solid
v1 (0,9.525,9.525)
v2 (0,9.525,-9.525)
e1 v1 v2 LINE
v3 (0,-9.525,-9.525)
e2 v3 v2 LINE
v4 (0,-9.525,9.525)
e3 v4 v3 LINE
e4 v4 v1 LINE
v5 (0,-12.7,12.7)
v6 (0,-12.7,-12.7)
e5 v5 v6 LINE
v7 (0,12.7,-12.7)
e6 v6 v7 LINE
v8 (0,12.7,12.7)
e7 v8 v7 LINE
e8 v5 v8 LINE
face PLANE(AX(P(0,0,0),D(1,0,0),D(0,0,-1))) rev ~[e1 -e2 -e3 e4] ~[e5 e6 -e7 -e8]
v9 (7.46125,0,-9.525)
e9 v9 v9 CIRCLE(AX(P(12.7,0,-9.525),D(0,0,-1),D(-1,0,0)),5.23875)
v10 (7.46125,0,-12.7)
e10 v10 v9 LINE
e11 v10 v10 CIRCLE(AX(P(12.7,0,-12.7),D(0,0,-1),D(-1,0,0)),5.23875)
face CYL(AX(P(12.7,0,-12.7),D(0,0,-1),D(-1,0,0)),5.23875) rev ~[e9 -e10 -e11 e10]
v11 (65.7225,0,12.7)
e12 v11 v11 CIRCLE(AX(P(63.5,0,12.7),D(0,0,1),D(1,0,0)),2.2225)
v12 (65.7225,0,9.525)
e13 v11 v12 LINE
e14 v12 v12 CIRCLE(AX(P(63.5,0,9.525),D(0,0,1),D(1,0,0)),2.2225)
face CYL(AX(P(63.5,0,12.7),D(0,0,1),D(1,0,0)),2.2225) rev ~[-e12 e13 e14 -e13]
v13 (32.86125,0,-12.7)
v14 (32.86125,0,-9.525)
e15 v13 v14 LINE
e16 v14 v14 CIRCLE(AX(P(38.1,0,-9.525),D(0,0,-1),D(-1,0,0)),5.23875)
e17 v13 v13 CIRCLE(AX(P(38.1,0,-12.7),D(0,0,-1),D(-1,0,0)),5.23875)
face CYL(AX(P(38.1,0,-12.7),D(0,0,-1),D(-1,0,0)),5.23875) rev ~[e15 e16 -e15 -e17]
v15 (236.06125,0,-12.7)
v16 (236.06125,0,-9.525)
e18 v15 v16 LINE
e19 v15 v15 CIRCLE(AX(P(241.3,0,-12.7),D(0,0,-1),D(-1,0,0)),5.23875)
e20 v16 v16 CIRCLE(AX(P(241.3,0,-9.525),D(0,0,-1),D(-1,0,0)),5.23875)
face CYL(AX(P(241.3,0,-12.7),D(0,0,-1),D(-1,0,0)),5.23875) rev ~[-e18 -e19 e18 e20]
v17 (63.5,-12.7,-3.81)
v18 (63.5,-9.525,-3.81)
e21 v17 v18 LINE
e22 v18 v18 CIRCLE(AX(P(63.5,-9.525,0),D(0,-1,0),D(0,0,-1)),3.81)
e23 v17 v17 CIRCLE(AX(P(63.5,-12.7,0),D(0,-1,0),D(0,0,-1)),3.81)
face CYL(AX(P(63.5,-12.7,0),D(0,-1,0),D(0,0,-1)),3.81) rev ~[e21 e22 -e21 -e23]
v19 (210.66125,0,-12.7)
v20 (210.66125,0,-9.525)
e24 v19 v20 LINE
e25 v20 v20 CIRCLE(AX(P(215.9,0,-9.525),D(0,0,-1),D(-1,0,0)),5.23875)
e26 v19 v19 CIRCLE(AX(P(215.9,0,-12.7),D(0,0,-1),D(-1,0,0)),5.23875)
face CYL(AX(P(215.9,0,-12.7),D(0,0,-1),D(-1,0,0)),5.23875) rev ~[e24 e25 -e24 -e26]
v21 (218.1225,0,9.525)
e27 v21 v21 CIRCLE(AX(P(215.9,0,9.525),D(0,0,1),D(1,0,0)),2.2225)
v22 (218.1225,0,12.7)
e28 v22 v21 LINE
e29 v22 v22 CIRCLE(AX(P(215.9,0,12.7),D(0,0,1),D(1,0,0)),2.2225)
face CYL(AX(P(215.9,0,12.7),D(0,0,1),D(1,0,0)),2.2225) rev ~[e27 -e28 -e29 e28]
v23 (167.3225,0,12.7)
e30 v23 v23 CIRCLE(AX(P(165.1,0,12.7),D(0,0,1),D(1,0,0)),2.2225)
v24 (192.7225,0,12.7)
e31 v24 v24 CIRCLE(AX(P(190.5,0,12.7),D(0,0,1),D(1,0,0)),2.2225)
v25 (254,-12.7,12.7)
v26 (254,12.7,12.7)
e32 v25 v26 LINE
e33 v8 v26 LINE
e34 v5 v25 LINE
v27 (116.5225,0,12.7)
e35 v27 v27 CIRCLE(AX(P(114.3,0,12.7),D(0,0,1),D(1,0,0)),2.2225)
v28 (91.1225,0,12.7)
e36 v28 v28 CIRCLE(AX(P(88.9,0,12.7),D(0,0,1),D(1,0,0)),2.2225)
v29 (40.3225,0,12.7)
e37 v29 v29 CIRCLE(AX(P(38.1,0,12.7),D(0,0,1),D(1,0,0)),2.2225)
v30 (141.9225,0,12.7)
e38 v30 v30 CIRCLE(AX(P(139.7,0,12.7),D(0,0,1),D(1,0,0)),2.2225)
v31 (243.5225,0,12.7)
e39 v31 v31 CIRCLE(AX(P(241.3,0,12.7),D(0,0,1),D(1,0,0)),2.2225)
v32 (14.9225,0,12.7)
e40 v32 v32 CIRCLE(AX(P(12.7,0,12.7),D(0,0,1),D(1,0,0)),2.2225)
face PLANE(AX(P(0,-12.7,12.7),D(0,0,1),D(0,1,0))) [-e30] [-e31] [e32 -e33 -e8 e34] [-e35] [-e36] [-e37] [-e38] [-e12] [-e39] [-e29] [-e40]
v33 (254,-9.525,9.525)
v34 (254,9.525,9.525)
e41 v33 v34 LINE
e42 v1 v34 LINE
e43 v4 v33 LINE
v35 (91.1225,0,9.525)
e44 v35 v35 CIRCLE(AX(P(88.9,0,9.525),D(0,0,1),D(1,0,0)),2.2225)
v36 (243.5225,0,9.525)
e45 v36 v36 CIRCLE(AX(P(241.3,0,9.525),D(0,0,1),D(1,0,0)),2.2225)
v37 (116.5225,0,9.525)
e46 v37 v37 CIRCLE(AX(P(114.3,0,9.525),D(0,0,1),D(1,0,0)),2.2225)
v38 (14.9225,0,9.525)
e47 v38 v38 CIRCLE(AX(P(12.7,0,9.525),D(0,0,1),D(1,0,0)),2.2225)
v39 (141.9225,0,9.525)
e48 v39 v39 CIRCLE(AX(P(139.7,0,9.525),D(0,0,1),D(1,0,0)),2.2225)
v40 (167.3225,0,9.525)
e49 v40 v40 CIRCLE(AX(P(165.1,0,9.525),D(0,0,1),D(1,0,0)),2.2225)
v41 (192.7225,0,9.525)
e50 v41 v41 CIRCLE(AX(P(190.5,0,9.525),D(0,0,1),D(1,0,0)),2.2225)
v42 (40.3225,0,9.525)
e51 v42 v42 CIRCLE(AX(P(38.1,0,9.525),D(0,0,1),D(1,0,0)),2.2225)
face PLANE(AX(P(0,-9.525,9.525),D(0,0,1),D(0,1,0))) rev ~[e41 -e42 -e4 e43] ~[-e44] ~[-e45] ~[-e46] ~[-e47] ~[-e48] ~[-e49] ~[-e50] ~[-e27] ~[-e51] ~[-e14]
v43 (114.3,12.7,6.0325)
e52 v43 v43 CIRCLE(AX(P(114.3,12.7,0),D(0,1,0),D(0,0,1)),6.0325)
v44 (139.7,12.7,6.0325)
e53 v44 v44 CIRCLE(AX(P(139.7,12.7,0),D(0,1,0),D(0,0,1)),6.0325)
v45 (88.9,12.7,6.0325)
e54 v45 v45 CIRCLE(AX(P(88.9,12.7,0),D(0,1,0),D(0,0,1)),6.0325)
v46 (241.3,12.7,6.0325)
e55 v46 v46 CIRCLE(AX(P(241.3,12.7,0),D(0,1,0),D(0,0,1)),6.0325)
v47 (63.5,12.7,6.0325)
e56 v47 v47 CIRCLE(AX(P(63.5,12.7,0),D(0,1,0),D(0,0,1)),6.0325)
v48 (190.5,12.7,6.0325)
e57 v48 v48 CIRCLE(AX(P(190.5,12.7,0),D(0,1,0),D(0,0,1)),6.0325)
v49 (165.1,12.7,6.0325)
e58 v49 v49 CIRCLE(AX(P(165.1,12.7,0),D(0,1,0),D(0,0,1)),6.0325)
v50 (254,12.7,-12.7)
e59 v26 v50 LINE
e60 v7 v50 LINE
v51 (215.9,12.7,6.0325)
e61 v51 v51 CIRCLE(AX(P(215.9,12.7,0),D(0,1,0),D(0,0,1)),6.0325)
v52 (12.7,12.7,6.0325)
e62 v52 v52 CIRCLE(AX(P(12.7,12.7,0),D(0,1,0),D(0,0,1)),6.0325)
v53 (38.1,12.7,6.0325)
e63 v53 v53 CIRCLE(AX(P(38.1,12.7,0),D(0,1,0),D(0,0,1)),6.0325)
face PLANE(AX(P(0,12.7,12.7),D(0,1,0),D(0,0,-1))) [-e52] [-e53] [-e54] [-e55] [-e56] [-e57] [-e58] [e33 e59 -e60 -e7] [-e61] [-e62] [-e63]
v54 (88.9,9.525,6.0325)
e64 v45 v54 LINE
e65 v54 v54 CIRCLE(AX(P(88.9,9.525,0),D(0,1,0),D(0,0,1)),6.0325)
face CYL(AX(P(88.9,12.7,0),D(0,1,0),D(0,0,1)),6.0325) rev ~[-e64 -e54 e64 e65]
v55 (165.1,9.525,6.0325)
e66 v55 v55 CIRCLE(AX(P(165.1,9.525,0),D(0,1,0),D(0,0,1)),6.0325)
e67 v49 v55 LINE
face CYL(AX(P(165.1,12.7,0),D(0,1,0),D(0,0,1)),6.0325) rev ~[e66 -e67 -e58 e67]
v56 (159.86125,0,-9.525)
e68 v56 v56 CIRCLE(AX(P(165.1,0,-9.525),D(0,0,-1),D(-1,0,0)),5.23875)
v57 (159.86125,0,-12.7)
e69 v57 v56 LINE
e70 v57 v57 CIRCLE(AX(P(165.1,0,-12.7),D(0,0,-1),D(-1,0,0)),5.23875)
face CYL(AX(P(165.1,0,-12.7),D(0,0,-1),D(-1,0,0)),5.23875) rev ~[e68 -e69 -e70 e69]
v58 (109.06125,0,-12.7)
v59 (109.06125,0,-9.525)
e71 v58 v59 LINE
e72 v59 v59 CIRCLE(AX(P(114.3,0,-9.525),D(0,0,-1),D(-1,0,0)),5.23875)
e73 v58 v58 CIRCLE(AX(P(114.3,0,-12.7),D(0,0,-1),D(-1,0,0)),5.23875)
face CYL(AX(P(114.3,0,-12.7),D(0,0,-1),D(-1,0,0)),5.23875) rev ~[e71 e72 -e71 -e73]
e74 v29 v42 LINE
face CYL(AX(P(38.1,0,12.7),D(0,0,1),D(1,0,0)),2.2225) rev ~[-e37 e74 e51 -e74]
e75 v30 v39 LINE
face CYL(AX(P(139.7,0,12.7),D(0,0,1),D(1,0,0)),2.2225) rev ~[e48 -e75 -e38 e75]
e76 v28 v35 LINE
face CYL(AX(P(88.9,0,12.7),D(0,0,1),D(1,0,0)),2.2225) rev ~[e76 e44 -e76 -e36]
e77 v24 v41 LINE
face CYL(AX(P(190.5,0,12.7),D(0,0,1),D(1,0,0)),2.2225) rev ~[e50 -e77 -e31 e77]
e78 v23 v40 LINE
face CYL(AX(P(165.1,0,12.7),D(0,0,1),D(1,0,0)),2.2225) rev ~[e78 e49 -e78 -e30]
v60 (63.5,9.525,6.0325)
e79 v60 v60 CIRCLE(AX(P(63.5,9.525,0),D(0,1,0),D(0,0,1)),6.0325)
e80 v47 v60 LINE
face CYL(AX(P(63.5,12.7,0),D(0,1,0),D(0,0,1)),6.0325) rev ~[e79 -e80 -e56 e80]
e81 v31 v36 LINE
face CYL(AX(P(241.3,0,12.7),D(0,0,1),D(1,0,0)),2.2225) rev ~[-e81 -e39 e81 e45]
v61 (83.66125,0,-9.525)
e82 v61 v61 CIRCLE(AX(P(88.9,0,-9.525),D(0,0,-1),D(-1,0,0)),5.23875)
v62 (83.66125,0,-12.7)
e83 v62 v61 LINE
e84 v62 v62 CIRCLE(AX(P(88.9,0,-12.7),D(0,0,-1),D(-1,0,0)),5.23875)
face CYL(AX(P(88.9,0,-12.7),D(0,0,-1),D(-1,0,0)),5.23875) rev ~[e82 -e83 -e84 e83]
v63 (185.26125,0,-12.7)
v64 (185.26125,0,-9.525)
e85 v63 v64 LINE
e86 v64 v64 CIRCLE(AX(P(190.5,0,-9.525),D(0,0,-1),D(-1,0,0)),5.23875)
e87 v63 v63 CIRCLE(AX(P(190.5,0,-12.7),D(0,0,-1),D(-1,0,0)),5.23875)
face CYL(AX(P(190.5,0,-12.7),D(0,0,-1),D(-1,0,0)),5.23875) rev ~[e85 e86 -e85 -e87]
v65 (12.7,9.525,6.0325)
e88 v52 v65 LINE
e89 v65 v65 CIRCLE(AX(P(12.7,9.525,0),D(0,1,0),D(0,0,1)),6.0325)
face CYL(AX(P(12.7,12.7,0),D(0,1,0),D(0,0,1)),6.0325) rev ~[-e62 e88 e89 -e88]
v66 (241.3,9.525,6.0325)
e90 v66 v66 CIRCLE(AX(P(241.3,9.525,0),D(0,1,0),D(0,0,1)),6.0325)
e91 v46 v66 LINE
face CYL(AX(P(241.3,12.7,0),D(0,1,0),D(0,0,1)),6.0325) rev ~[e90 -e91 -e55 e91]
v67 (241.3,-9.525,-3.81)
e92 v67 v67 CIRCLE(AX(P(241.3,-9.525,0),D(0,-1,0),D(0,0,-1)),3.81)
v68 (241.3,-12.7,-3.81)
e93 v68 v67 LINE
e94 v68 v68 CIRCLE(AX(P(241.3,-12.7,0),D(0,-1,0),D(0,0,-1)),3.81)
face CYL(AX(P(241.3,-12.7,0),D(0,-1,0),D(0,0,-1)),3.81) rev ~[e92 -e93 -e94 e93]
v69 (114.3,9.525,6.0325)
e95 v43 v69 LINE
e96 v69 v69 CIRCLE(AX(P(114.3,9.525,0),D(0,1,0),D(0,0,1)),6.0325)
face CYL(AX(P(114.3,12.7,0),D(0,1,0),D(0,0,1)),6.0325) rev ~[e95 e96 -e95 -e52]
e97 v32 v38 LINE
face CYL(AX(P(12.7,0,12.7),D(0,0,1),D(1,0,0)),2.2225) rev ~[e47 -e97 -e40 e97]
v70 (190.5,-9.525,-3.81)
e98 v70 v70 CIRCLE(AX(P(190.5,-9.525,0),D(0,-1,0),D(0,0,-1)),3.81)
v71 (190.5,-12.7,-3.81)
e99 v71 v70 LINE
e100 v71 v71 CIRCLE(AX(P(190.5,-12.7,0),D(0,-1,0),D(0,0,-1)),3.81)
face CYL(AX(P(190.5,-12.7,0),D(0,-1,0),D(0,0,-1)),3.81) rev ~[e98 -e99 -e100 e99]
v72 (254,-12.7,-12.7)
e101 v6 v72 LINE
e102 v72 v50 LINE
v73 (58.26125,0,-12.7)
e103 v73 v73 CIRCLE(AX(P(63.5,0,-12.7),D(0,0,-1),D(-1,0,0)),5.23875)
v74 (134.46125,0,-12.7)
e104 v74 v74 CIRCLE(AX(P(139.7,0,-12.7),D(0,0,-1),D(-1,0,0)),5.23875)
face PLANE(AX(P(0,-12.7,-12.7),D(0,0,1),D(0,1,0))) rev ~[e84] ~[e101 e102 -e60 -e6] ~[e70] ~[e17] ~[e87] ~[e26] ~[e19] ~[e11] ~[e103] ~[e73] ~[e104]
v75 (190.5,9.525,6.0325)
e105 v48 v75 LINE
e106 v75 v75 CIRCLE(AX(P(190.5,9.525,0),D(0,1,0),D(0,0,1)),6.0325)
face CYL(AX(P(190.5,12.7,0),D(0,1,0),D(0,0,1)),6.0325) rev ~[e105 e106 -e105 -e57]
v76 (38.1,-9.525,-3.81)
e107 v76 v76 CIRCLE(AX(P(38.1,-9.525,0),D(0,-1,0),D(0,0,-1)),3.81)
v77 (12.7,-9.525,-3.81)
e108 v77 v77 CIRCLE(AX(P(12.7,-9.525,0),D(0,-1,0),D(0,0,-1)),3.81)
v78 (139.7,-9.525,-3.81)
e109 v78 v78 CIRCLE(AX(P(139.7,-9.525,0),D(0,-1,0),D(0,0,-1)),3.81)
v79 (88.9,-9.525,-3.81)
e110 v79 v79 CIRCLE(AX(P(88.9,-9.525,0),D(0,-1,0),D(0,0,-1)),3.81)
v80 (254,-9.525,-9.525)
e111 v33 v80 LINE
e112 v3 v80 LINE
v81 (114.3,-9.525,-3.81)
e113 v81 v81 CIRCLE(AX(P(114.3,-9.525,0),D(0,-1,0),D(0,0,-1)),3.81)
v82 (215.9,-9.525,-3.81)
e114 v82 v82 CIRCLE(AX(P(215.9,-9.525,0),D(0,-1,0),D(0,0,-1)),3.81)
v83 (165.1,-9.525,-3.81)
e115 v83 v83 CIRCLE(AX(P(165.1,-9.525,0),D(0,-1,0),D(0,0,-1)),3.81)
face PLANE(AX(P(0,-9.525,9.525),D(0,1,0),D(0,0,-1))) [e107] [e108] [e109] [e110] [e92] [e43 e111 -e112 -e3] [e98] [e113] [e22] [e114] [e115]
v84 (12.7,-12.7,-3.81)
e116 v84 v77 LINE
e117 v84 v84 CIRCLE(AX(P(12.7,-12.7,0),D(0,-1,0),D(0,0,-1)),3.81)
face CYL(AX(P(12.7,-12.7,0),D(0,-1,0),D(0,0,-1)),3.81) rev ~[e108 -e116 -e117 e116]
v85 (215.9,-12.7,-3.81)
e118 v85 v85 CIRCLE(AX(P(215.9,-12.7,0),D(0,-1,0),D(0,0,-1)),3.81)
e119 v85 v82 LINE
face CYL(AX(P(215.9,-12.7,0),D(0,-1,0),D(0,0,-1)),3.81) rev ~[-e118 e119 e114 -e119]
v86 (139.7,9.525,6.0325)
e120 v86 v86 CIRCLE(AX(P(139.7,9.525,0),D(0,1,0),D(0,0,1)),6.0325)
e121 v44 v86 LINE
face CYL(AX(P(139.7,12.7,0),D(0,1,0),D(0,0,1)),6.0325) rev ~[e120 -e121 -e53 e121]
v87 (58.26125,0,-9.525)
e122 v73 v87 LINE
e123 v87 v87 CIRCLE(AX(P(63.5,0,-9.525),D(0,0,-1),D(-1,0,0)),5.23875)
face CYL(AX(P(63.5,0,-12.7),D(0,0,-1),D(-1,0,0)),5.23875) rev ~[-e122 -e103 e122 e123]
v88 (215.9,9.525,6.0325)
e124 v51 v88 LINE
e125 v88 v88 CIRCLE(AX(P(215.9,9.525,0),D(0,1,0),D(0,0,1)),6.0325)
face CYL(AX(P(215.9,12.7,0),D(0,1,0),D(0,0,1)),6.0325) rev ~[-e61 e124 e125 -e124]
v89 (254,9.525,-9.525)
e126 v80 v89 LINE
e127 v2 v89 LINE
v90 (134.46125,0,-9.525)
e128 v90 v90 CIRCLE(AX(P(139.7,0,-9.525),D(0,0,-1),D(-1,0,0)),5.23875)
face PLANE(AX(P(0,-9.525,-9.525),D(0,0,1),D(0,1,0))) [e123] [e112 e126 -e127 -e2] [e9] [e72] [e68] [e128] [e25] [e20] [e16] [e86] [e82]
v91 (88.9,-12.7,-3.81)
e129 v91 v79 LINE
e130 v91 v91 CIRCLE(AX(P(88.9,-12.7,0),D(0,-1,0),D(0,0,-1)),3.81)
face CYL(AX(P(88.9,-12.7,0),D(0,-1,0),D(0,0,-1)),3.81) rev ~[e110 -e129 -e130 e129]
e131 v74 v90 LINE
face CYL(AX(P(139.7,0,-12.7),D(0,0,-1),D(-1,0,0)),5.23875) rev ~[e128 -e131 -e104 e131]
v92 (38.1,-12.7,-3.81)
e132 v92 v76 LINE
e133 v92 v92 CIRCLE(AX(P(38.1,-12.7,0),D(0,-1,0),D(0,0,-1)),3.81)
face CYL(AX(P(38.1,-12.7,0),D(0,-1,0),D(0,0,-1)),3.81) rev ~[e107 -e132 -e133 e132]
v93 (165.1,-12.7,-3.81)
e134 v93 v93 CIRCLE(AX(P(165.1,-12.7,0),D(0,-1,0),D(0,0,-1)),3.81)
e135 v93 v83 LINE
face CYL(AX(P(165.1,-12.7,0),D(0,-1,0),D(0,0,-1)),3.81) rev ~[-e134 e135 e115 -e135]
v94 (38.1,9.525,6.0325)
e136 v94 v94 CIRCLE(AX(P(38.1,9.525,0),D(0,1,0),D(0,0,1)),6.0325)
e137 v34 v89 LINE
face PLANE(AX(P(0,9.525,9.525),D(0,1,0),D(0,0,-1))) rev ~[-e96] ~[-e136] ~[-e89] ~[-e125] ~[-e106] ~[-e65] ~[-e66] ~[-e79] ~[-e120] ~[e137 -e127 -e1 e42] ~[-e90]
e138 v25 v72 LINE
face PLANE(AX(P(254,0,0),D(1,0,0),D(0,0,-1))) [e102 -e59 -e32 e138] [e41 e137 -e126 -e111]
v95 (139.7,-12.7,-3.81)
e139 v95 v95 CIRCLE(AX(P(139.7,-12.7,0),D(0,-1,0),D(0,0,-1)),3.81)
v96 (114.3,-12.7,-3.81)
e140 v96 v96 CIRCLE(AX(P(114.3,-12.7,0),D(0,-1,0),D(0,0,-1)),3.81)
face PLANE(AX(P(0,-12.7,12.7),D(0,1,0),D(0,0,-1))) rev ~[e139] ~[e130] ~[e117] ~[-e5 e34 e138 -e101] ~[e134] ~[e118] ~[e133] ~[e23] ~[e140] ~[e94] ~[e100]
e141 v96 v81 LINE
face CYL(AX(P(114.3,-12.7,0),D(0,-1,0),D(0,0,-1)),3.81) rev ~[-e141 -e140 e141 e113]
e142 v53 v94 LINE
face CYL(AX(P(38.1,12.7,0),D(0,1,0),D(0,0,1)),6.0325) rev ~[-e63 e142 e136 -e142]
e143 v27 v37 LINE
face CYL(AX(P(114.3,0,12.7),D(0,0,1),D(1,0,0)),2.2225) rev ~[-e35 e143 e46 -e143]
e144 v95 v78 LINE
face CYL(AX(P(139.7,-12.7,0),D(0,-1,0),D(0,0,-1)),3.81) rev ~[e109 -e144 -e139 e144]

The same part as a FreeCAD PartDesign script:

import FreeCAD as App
import Part
import Sketcher

V = App.Vector
Q = App.Units.Quantity


def add_polygon(sketch, points):
    """Adds a closed chain of lines whose ends are joined by coincident constraints."""
    first, n = sketch.GeometryCount, len(points)
    for a, b in zip(points, points[1:] + points[:1]):
        sketch.addGeometry(Part.LineSegment(App.Vector(*a, 0), App.Vector(*b, 0)), False)
    for i in range(n):
        sketch.addConstraint(Sketcher.Constraint("Coincident", first + i, 2, first + (i + 1) % n, 1))

doc = App.newDocument("Part")
body = doc.addObject("PartDesign::Body", "Body")

sketch1 = body.newObject("Sketcher::SketchObject", "Sketch")
sketch1.AttachmentSupport = (doc.getObject("YZ_Plane"), [""])
sketch1.MapMode = "FlatFace"
add_polygon(sketch1, [(12.7, 12.7), (-12.7, 12.7), (-12.7, -12.7), (12.7, -12.7)])
add_polygon(sketch1, [(-9.525, -9.525), (-9.525, 9.525), (9.525, 9.525), (9.525, -9.525)])
sketch1.addConstraint([
    Sketcher.Constraint("Horizontal", 0),
    Sketcher.Constraint("Vertical", 1),
    Sketcher.Constraint("Horizontal", 2),
    Sketcher.Constraint("Vertical", 3),
    Sketcher.Constraint("Vertical", 4),
    Sketcher.Constraint("Horizontal", 5),
    Sketcher.Constraint("Vertical", 6),
    Sketcher.Constraint("Horizontal", 7),
    Sketcher.Constraint("Symmetric", 0, 2, 2, 2, -1, 1),
    Sketcher.Constraint("Symmetric", 4, 2, 6, 2, -1, 1),
    Sketcher.Constraint("Equal", 2, 1),
    Sketcher.Constraint("Equal", 7, 4),
    Sketcher.Constraint("DistanceX", 0, 2, 0, 1, Q("1 in")),
    Sketcher.Constraint("DistanceX", 5, 1, 5, 2, Q("0.75 in")),
])
pad1 = body.newObject("PartDesign::Pad", "Pad")
pad1.Profile = sketch1
pad1.Length = Q("10 in")

sketch2 = body.newObject("Sketcher::SketchObject", "Sketch001")
sketch2.AttachmentSupport = (doc.getObject("XZ_Plane"), [""])
sketch2.MapMode = "FlatFace"
sketch2.AttachmentOffset = App.Placement(V(0, 0, -0.5 * 25.4), App.Rotation())
sketch2.addGeometry(Part.Circle(V(12.7, 0, 0), V(0, 0, 1), 6.0325), False)
sketch2.addConstraint([
    Sketcher.Constraint("PointOnObject", 0, 3, -1),
    Sketcher.Constraint("Diameter", 0, Q("0.475 in")),
    Sketcher.Constraint("DistanceX", -1, 1, 0, 3, Q("0.5 in")),
])
pocket1 = body.newObject("PartDesign::Pocket", "Pocket")
pocket1.Profile = sketch2
pocket1.Length = Q("0.125 in")
pocket1.Reversed = True

sketch3 = body.newObject("Sketcher::SketchObject", "Sketch002")
sketch3.AttachmentSupport = (doc.getObject("XZ_Plane"), [""])
sketch3.MapMode = "FlatFace"
sketch3.AttachmentOffset = App.Placement(V(0, 0, 0.5 * 25.4), App.Rotation())
sketch3.addGeometry(Part.Circle(V(12.7, 0, 0), V(0, 0, 1), 3.81), False)
sketch3.addConstraint([
    Sketcher.Constraint("PointOnObject", 0, 3, -1),
    Sketcher.Constraint("Diameter", 0, Q("0.3 in")),
    Sketcher.Constraint("DistanceX", -1, 1, 0, 3, Q("0.5 in")),
])
pocket2 = body.newObject("PartDesign::Pocket", "Pocket001")
pocket2.Profile = sketch3
pocket2.Length = Q("0.125 in")
doc.recompute()

linearpattern = body.newObject("PartDesign::LinearPattern", "LinearPattern")
linearpattern.Originals = [pocket1, pocket2]
linearpattern.Direction = (doc.getObject("X_Axis"), [""])
linearpattern.Mode = "offset"
linearpattern.Offset = Q("1 in")
linearpattern.Occurrences = 10
body.Tip = linearpattern

sketch4 = body.newObject("Sketcher::SketchObject", "Sketch003")
sketch4.AttachmentSupport = (doc.getObject("XY_Plane"), [""])
sketch4.MapMode = "FlatFace"
sketch4.AttachmentOffset = App.Placement(V(0, 0, 0.5 * 25.4), App.Rotation())
sketch4.addGeometry(Part.Circle(V(12.7, 0, 0), V(0, 0, 1), 2.2225), False)
sketch4.addConstraint([
    Sketcher.Constraint("PointOnObject", 0, 3, -1),
    Sketcher.Constraint("Diameter", 0, Q("0.175 in")),
    Sketcher.Constraint("DistanceX", -1, 1, 0, 3, Q("0.5 in")),
])
pocket3 = body.newObject("PartDesign::Pocket", "Pocket002")
pocket3.Profile = sketch4
pocket3.Length = Q("0.125 in")

sketch5 = body.newObject("Sketcher::SketchObject", "Sketch004")
sketch5.AttachmentSupport = (doc.getObject("XY_Plane"), [""])
sketch5.MapMode = "FlatFace"
sketch5.AttachmentOffset = App.Placement(V(0, 0, -0.5 * 25.4), App.Rotation())
sketch5.addGeometry(Part.Circle(V(12.7, 0, 0), V(0, 0, 1), 5.23875), False)
sketch5.addConstraint([
    Sketcher.Constraint("PointOnObject", 0, 3, -1),
    Sketcher.Constraint("Diameter", 0, Q("0.4125 in")),
    Sketcher.Constraint("DistanceX", -1, 1, 0, 3, Q("0.5 in")),
])
pocket4 = body.newObject("PartDesign::Pocket", "Pocket003")
pocket4.Profile = sketch5
pocket4.Length = Q("0.125 in")
pocket4.Reversed = True
doc.recompute()

linearpattern2 = body.newObject("PartDesign::LinearPattern", "LinearPattern001")
linearpattern2.Originals = [pocket3, pocket4]
linearpattern2.Direction = (doc.getObject("X_Axis"), [""])
linearpattern2.Mode = "offset"
linearpattern2.Offset = Q("1 in")
linearpattern2.Occurrences = 10
body.Tip = linearpattern2

doc.recompute()
